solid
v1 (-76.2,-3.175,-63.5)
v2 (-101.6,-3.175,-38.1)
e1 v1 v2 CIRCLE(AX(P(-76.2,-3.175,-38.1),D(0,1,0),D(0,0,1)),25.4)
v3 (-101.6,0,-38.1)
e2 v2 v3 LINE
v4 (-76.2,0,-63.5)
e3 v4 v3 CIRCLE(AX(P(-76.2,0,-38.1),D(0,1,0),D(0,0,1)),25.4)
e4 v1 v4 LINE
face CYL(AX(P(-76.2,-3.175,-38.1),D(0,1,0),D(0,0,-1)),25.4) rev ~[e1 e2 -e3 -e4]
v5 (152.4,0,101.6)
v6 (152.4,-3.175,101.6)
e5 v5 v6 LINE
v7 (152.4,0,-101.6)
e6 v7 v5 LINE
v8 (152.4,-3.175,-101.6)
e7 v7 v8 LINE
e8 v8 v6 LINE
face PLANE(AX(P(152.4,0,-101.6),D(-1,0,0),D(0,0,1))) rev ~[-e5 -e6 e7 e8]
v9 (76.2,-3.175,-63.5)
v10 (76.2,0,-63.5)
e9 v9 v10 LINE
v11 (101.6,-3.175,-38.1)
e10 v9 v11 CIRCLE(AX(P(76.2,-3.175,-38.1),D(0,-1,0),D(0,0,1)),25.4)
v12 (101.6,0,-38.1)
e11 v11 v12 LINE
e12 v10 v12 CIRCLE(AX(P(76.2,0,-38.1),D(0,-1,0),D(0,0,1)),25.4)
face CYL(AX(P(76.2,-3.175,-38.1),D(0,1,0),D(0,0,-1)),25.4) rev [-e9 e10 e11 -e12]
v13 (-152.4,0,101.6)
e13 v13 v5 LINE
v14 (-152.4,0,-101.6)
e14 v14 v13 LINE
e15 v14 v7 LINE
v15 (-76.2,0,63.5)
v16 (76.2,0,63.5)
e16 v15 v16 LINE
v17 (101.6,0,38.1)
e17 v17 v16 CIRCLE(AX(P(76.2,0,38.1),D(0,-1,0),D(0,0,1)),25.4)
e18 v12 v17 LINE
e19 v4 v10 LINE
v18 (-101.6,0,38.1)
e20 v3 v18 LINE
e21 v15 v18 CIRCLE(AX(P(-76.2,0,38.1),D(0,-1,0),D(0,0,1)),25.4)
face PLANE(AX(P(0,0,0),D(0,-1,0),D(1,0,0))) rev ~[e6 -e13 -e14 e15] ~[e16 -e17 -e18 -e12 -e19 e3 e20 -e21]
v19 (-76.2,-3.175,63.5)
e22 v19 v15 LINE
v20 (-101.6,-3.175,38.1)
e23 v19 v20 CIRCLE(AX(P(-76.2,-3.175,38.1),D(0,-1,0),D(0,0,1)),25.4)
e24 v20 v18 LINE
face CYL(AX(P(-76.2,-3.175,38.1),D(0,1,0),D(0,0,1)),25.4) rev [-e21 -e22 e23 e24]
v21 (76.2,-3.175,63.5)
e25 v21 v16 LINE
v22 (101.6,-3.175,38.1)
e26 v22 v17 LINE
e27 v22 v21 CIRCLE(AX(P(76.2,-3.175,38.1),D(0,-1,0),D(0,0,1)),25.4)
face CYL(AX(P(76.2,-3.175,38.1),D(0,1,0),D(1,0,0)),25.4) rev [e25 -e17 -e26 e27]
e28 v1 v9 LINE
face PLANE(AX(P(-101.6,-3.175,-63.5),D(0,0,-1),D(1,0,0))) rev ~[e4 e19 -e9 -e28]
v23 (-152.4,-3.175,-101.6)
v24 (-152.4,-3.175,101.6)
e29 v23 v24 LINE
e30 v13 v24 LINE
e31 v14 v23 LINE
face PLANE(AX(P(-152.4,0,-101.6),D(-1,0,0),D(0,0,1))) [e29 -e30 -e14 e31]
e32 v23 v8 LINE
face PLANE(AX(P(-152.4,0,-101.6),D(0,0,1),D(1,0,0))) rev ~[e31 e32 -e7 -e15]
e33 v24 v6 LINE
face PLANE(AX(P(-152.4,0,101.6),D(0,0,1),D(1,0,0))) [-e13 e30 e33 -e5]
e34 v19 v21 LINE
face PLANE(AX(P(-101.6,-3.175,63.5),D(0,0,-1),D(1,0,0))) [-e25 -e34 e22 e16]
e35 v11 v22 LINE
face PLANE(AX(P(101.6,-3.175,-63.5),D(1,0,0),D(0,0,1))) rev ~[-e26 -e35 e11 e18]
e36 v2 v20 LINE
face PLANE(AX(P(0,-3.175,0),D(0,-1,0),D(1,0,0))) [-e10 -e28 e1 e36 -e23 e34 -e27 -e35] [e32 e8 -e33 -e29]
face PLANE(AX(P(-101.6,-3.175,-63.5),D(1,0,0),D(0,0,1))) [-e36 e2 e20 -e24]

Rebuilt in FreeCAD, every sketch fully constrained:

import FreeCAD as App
import Part
import Sketcher

V = App.Vector
Q = App.Units.Quantity


def edges_at(feature, points):
    """Names of the edges that pass closest to the given points."""
    edges = feature.Shape.Edges
    near = lambda p: min(range(len(edges)), key=lambda i: edges[i].distToShape(Part.Vertex(*p))[0])
    return sorted({f"Edge{near(p) + 1}" for p in points})

doc = App.newDocument("Part")
body = doc.addObject("PartDesign::Body", "Body")

# Sketch on XZ plane
sketch1 = doc.addObject("Sketcher::SketchObject", "Sketch")
body.addObject(sketch1)
sketch1.AttachmentSupport = (doc.XZ_Plane, [""])
sketch1.MapMode = "FlatFace"
sketch1.addGeometry(Part.LineSegment(V(-152, 102, 0), V(-152, -102, 0)), False)
sketch1.addGeometry(Part.LineSegment(V(-152, -102, 0), V(152, -102, 0)), False)
sketch1.addGeometry(Part.LineSegment(V(152, -102, 0), V(152, 102, 0)), False)
sketch1.addGeometry(Part.LineSegment(V(152, 102, 0), V(-152, 102, 0)), False)
sketch1.addConstraint(Sketcher.Constraint("Coincident", 0, 2, 1, 1))
sketch1.addConstraint(Sketcher.Constraint("Coincident", 1, 2, 2, 1))
sketch1.addConstraint(Sketcher.Constraint("Coincident", 2, 2, 3, 1))
sketch1.addConstraint(Sketcher.Constraint("Coincident", 3, 2, 0, 1))
sketch1.addConstraint(Sketcher.Constraint("Vertical", 0))
sketch1.addConstraint(Sketcher.Constraint("Horizontal", 1))
sketch1.addConstraint(Sketcher.Constraint("Vertical", 2))
sketch1.addConstraint(Sketcher.Constraint("Horizontal", 3))
sketch1.addConstraint(Sketcher.Constraint("Symmetric", 0, 2, 2, 2, -1, 1))
sketch1.addConstraint(Sketcher.Constraint("DistanceX", 1, 1, 1, 2, Q("12 in")))
sketch1.addConstraint(Sketcher.Constraint("DistanceY", 0, 2, 0, 1, Q("8 in")))
pad1 = doc.addObject("PartDesign::Pad", "Pad")
body.addObject(pad1)
pad1.Profile = sketch1
pad1.Length = Q("0.125 in")

# Sketch on XZ plane
sketch2 = doc.addObject("Sketcher::SketchObject", "Sketch001")
body.addObject(sketch2)
sketch2.AttachmentSupport = (doc.XZ_Plane, [""])
sketch2.MapMode = "FlatFace"
sketch2.AttachmentOffset = App.Placement(V(0, 0, 0.125 * 25.4), App.Rotation())
sketch2.addGeometry(Part.LineSegment(V(-102, 64, 0), V(-102, -64, 0)), False)
sketch2.addGeometry(Part.LineSegment(V(-102, -64, 0), V(102, -64, 0)), False)
sketch2.addGeometry(Part.LineSegment(V(102, -64, 0), V(102, 64, 0)), False)
sketch2.addGeometry(Part.LineSegment(V(102, 64, 0), V(-102, 64, 0)), False)
sketch2.addConstraint(Sketcher.Constraint("Coincident", 0, 2, 1, 1))
sketch2.addConstraint(Sketcher.Constraint("Coincident", 1, 2, 2, 1))
sketch2.addConstraint(Sketcher.Constraint("Coincident", 2, 2, 3, 1))
sketch2.addConstraint(Sketcher.Constraint("Coincident", 3, 2, 0, 1))
sketch2.addConstraint(Sketcher.Constraint("Vertical", 0))
sketch2.addConstraint(Sketcher.Constraint("Horizontal", 1))
sketch2.addConstraint(Sketcher.Constraint("Vertical", 2))
sketch2.addConstraint(Sketcher.Constraint("Horizontal", 3))
sketch2.addConstraint(Sketcher.Constraint("Symmetric", 0, 2, 2, 2, -1, 1))
sketch2.addConstraint(Sketcher.Constraint("DistanceX", 1, 1, 1, 2, Q("8 in")))
sketch2.addConstraint(Sketcher.Constraint("DistanceY", 0, 2, 0, 1, Q("5 in")))
pocket1 = doc.addObject("PartDesign::Pocket", "Pocket")
body.addObject(pocket1)
pocket1.Profile = sketch2
pocket1.Length = Q("1 in")
doc.recompute()

fillet = doc.addObject("PartDesign::Fillet", "Fillet")
body.addObject(fillet)
fillet.Base = (pocket1, edges_at(pocket1, [
    (-101.6, -1.587, 63.5),
    (-101.6, -1.587, -63.5),
    (101.6, -1.587, -63.5),
    (101.6, -1.587, 63.5),
]))
fillet.Radius = Q("1 in")

doc.recompute()
